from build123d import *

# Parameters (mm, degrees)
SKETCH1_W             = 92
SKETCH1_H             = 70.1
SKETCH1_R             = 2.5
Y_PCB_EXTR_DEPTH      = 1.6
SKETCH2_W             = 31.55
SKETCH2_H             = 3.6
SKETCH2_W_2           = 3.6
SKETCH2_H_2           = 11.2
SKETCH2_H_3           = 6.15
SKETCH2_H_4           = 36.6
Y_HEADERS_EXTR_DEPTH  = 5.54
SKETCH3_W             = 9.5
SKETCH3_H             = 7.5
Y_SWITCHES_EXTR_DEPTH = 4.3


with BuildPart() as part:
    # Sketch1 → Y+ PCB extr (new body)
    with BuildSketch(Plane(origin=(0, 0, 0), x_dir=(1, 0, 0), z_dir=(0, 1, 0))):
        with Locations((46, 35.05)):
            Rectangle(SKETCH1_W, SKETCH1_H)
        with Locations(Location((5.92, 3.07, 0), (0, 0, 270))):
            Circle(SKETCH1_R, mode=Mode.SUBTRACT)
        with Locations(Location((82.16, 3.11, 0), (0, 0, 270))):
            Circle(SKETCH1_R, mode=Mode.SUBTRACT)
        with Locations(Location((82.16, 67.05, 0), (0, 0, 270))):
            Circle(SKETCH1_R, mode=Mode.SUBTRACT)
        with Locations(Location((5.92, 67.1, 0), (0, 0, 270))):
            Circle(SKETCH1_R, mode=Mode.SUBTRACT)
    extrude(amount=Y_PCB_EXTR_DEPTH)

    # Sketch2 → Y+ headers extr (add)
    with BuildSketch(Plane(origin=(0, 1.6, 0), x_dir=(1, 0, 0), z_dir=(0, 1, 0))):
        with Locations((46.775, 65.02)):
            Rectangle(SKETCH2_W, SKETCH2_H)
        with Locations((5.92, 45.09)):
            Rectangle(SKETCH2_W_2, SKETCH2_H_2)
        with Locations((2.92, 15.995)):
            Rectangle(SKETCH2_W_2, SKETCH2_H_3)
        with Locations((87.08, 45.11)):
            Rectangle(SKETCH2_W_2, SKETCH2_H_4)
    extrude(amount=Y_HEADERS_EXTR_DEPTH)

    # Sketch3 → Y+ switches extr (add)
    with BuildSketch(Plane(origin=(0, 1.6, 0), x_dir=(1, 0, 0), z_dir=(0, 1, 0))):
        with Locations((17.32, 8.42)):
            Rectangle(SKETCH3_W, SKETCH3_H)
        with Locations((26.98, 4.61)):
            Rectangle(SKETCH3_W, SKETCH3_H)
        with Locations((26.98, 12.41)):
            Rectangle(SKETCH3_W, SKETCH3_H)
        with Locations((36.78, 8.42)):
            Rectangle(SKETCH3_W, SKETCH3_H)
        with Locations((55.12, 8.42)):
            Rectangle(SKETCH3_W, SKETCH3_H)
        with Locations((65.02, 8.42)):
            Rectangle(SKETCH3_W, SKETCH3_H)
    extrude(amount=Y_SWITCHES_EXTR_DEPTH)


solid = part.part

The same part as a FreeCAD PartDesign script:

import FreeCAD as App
import Part
import Sketcher

V = App.Vector
Q = App.Units.Quantity

doc = App.newDocument("Part")
params = doc.addObject("Spreadsheet::Sheet", "Params")
for row, (alias, value) in enumerate([
    ("sketch1_diameter", "5 mm"),
    ("sketch1_width", "92 mm"),
    ("sketch1_height", "70.1 mm"),
    ("pad1_length", "1.6 mm"),
    ("sketch2_width", "3.6 mm"),
    ("sketch2_height", "11.2 mm"),
    ("sketch2_height2", "36.6 mm"),
    ("sketch2_width2", "31.55 mm"),
    ("sketch2_height3", "6.15 mm"),
    ("pad2_length", "5.54 mm"),
    ("sketch3_width", "9.5 mm"),
    ("sketch3_height", "7.5 mm"),
    ("pad3_length", "4.3 mm"),
], start=1):
    params.set(f"A{row}", alias)
    params.set(f"B{row}", "=" + value)
    params.setAlias(f"B{row}", alias)

body = doc.addObject("PartDesign::Body", "Body")

# Sketch on XZ plane
sketch1 = doc.addObject("Sketcher::SketchObject", "Sketch")
body.addObject(sketch1)
sketch1.AttachmentSupport = (doc.XZ_Plane, [""])
sketch1.MapMode = "FlatFace"
sketch1.addGeometry([
    Part.LineSegment(V(0, -70.1, 0), V(0, 0, 0)),  # 0
    Part.LineSegment(V(0, 0, 0), V(92, 0, 0)),  # 1
    Part.LineSegment(V(92, 0, 0), V(92, -70.1, 0)),  # 2
    Part.LineSegment(V(92, -70.1, 0), V(0, -70.1, 0)),  # 3
    Part.Circle(V(5.9, -3.1, 0), V(0, 0, 1), 2.5),  # 4
    Part.Circle(V(82.2, -3.1, 0), V(0, 0, 1), 2.5),  # 5
    Part.Circle(V(5.9, -67.1, 0), V(0, 0, 1), 2.5),  # 6
    Part.Circle(V(82.2, -67, 0), V(0, 0, 1), 2.5),  # 7
], False)
sketch1.addConstraint([
    Sketcher.Constraint("Coincident", 0, 2, 1, 1),
    Sketcher.Constraint("Coincident", 1, 2, 2, 1),
    Sketcher.Constraint("Coincident", 2, 2, 3, 1),
    Sketcher.Constraint("Coincident", 3, 2, 0, 1),
    Sketcher.Constraint("Vertical", 0),
    Sketcher.Constraint("Horizontal", 1),
    Sketcher.Constraint("Vertical", 2),
    Sketcher.Constraint("Horizontal", 3),
    Sketcher.Constraint("Coincident", 0, 2, -1, 1),
    Sketcher.Constraint("Equal", 4, 5),
    Sketcher.Constraint("Equal", 5, 6),
    Sketcher.Constraint("Equal", 6, 7),
    Sketcher.Constraint("Vertical", 4, 3, 6, 3),
    Sketcher.Constraint("Vertical", 5, 3, 7, 3),
    Sketcher.Constraint("Diameter", 4, Q("5 mm")),
    Sketcher.Constraint("DistanceX", 1, 1, 1, 2, Q("92 mm")),
    Sketcher.Constraint("DistanceY", 0, 1, 0, 2, Q("70.1 mm")),
    Sketcher.Constraint("DistanceY", 2, 2, 6, 3, Q("3 mm")),
    Sketcher.Constraint("DistanceX", -1, 1, 4, 3, Q("5.92 mm")),
    Sketcher.Constraint("DistanceY", 4, 3, -1, 1, Q("3.07 mm")),
    Sketcher.Constraint("DistanceX", -1, 1, 5, 3, Q("82.16 mm")),
    Sketcher.Constraint("DistanceY", 5, 3, -1, 1, Q("3.11 mm")),
    Sketcher.Constraint("DistanceY", 7, 3, -1, 1, Q("67.05 mm")),
])
sketch1.setExpression("Constraints[14]", "Params.sketch1_diameter")
sketch1.setExpression("Constraints[15]", "Params.sketch1_width")
sketch1.setExpression("Constraints[16]", "Params.sketch1_height")
pad1 = doc.addObject("PartDesign::Pad", "Pad")
body.addObject(pad1)
pad1.Profile = sketch1
pad1.setExpression("Length", "Params.pad1_length")
pad1.Reversed = True

# Sketch on XZ plane
sketch2 = doc.addObject("Sketcher::SketchObject", "Sketch001")
body.addObject(sketch2)
sketch2.AttachmentSupport = (doc.XZ_Plane, [""])
sketch2.MapMode = "FlatFace"
sketch2.AttachmentOffset = App.Placement(V(0, 0, -1.6), App.Rotation())
sketch2.addGeometry([
    Part.LineSegment(V(31, -66.8, 0), V(31, -63.2, 0)),  # 0
    Part.LineSegment(V(31, -63.2, 0), V(62.5, -63.2, 0)),  # 1
    Part.LineSegment(V(62.5, -63.2, 0), V(62.5, -66.8, 0)),  # 2
    Part.LineSegment(V(62.5, -66.8, 0), V(31, -66.8, 0)),  # 3
    Part.LineSegment(V(4.1, -50.7, 0), V(4.1, -39.5, 0)),  # 4
    Part.LineSegment(V(4.1, -39.5, 0), V(7.7, -39.5, 0)),  # 5
    Part.LineSegment(V(7.7, -39.5, 0), V(7.7, -50.7, 0)),  # 6
    Part.LineSegment(V(7.7, -50.7, 0), V(4.1, -50.7, 0)),  # 7
    Part.LineSegment(V(1.1, -19.1, 0), V(1.1, -12.9, 0)),  # 8
    Part.LineSegment(V(1.1, -12.9, 0), V(4.7, -12.9, 0)),  # 9
    Part.LineSegment(V(4.7, -12.9, 0), V(4.7, -19.1, 0)),  # 10
    Part.LineSegment(V(4.7, -19.1, 0), V(1.1, -19.1, 0)),  # 11
    Part.LineSegment(V(85.3, -63.4, 0), V(85.3, -26.8, 0)),  # 12
    Part.LineSegment(V(85.3, -26.8, 0), V(88.9, -26.8, 0)),  # 13
    Part.LineSegment(V(88.9, -26.8, 0), V(88.9, -63.4, 0)),  # 14
    Part.LineSegment(V(88.9, -63.4, 0), V(85.3, -63.4, 0)),  # 15
], False)
sketch2.addConstraint([
    Sketcher.Constraint("Coincident", 0, 2, 1, 1),
    Sketcher.Constraint("Coincident", 1, 2, 2, 1),
    Sketcher.Constraint("Coincident", 2, 2, 3, 1),
    Sketcher.Constraint("Coincident", 3, 2, 0, 1),
    Sketcher.Constraint("Coincident", 4, 2, 5, 1),
    Sketcher.Constraint("Coincident", 5, 2, 6, 1),
    Sketcher.Constraint("Coincident", 6, 2, 7, 1),
    Sketcher.Constraint("Coincident", 7, 2, 4, 1),
    Sketcher.Constraint("Coincident", 8, 2, 9, 1),
    Sketcher.Constraint("Coincident", 9, 2, 10, 1),
    Sketcher.Constraint("Coincident", 10, 2, 11, 1),
    Sketcher.Constraint("Coincident", 11, 2, 8, 1),
    Sketcher.Constraint("Coincident", 12, 2, 13, 1),
    Sketcher.Constraint("Coincident", 13, 2, 14, 1),
    Sketcher.Constraint("Coincident", 14, 2, 15, 1),
    Sketcher.Constraint("Coincident", 15, 2, 12, 1),
    Sketcher.Constraint("Vertical", 0),
    Sketcher.Constraint("Horizontal", 1),
    Sketcher.Constraint("Vertical", 2),
    Sketcher.Constraint("Horizontal", 3),
    Sketcher.Constraint("Vertical", 4),
    Sketcher.Constraint("Horizontal", 5),
    Sketcher.Constraint("Vertical", 6),
    Sketcher.Constraint("Horizontal", 7),
    Sketcher.Constraint("Vertical", 8),
    Sketcher.Constraint("Horizontal", 9),
    Sketcher.Constraint("Vertical", 10),
    Sketcher.Constraint("Horizontal", 11),
    Sketcher.Constraint("Vertical", 12),
    Sketcher.Constraint("Horizontal", 13),
    Sketcher.Constraint("Vertical", 14),
    Sketcher.Constraint("Horizontal", 15),
    Sketcher.Constraint("Equal", 7, 9),
    Sketcher.Constraint("Equal", 11, 13),
    Sketcher.Constraint("Equal", 15, 0),
    Sketcher.Constraint("DistanceX", 5, 1, 5, 2, Q("3.6 mm")),
    Sketcher.Constraint("DistanceY", 4, 1, 4, 2, Q("11.2 mm")),
    Sketcher.Constraint("DistanceY", 12, 1, 12, 2, Q("36.6 mm")),
    Sketcher.Constraint("DistanceX", -1, 1, 0, 2, Q("31 mm")),
    Sketcher.Constraint("DistanceX", 8, 2, 4, 2, Q("3 mm")),
    Sketcher.Constraint("DistanceX", 1, 1, 1, 2, Q("31.55 mm")),
    Sketcher.Constraint("DistanceY", 8, 1, 8, 2, Q("6.15 mm")),
    Sketcher.Constraint("DistanceY", 0, 2, 8, 2, Q("50.3 mm")),
    Sketcher.Constraint("DistanceY", 0, 2, -1, 1, Q("63.22 mm")),
    Sketcher.Constraint("DistanceX", -1, 1, 4, 2, Q("4.12 mm")),
    Sketcher.Constraint("DistanceY", 4, 2, -1, 1, Q("39.49 mm")),
    Sketcher.Constraint("DistanceX", -1, 1, 12, 2, Q("85.28 mm")),
    Sketcher.Constraint("DistanceY", 12, 2, -1, 1, Q("26.81 mm")),
])
sketch2.setExpression("Constraints[35]", "Params.sketch2_width")
sketch2.setExpression("Constraints[36]", "Params.sketch2_height")
sketch2.setExpression("Constraints[37]", "Params.sketch2_height2")
sketch2.setExpression("Constraints[40]", "Params.sketch2_width2")
sketch2.setExpression("Constraints[41]", "Params.sketch2_height3")
pad2 = doc.addObject("PartDesign::Pad", "Pad001")
body.addObject(pad2)
pad2.Profile = sketch2
pad2.setExpression("Length", "Params.pad2_length")
pad2.Reversed = True

# Sketch on XZ plane
sketch3 = doc.addObject("Sketcher::SketchObject", "Sketch002")
body.addObject(sketch3)
sketch3.AttachmentSupport = (doc.XZ_Plane, [""])
sketch3.MapMode = "FlatFace"
sketch3.AttachmentOffset = App.Placement(V(0, 0, -1.6), App.Rotation())
sketch3.addGeometry([
    Part.LineSegment(V(13, -12, 0), V(13, -5, 0)),  # 0
    Part.LineSegment(V(13, -5, 0), V(22, -5, 0)),  # 1
    Part.LineSegment(V(22, -5, 0), V(22, -12, 0)),  # 2
    Part.LineSegment(V(22, -12, 0), V(13, -12, 0)),  # 3
    Part.LineSegment(V(22, -8, 0), V(22, -1, 0)),  # 4
    Part.LineSegment(V(22, -1, 0), V(32, -1, 0)),  # 5
    Part.LineSegment(V(32, -1, 0), V(32, -8, 0)),  # 6
    Part.LineSegment(V(32, -8, 0), V(22, -8, 0)),  # 7
    Part.LineSegment(V(22, -16, 0), V(22, -9, 0)),  # 8
    Part.LineSegment(V(22, -9, 0), V(32, -9, 0)),  # 9
    Part.LineSegment(V(32, -9, 0), V(32, -16, 0)),  # 10
    Part.LineSegment(V(32, -16, 0), V(22, -16, 0)),  # 11
    Part.LineSegment(V(32, -12, 0), V(32, -5, 0)),  # 12
    Part.LineSegment(V(32, -5, 0), V(42, -5, 0)),  # 13
    Part.LineSegment(V(42, -5, 0), V(42, -12, 0)),  # 14
    Part.LineSegment(V(42, -12, 0), V(32, -12, 0)),  # 15
    Part.LineSegment(V(50, -12, 0), V(50, -5, 0)),  # 16
    Part.LineSegment(V(50, -5, 0), V(60, -5, 0)),  # 17
    Part.LineSegment(V(60, -5, 0), V(60, -12, 0)),  # 18
    Part.LineSegment(V(60, -12, 0), V(50, -12, 0)),  # 19
    Part.LineSegment(V(60, -12, 0), V(60, -5, 0)),  # 20
    Part.LineSegment(V(60, -5, 0), V(70, -5, 0)),  # 21
    Part.LineSegment(V(70, -5, 0), V(70, -12, 0)),  # 22
    Part.LineSegment(V(70, -12, 0), V(60, -12, 0)),  # 23
], False)
sketch3.addConstraint([
    Sketcher.Constraint("Coincident", 0, 2, 1, 1),
    Sketcher.Constraint("Coincident", 1, 2, 2, 1),
    Sketcher.Constraint("Coincident", 2, 2, 3, 1),
    Sketcher.Constraint("Coincident", 3, 2, 0, 1),
    Sketcher.Constraint("Coincident", 4, 2, 5, 1),
    Sketcher.Constraint("Coincident", 5, 2, 6, 1),
    Sketcher.Constraint("Coincident", 6, 2, 7, 1),
    Sketcher.Constraint("Coincident", 7, 2, 4, 1),
    Sketcher.Constraint("Coincident", 8, 2, 9, 1),
    Sketcher.Constraint("Coincident", 9, 2, 10, 1),
    Sketcher.Constraint("Coincident", 10, 2, 11, 1),
    Sketcher.Constraint("Coincident", 11, 2, 8, 1),
    Sketcher.Constraint("Coincident", 12, 2, 13, 1),
    Sketcher.Constraint("Coincident", 13, 2, 14, 1),
    Sketcher.Constraint("Coincident", 14, 2, 15, 1),
    Sketcher.Constraint("Coincident", 15, 2, 12, 1),
    Sketcher.Constraint("Coincident", 16, 2, 17, 1),
    Sketcher.Constraint("Coincident", 17, 2, 18, 1),
    Sketcher.Constraint("Coincident", 18, 2, 19, 1),
    Sketcher.Constraint("Coincident", 19, 2, 16, 1),
    Sketcher.Constraint("Coincident", 20, 2, 21, 1),
    Sketcher.Constraint("Coincident", 21, 2, 22, 1),
    Sketcher.Constraint("Coincident", 22, 2, 23, 1),
    Sketcher.Constraint("Coincident", 23, 2, 20, 1),
    Sketcher.Constraint("Vertical", 0),
    Sketcher.Constraint("Horizontal", 1),
    Sketcher.Constraint("Vertical", 2),
    Sketcher.Constraint("Horizontal", 3),
    Sketcher.Constraint("Vertical", 4),
    Sketcher.Constraint("Horizontal", 5),
    Sketcher.Constraint("Vertical", 6),
    Sketcher.Constraint("Horizontal", 7),
    Sketcher.Constraint("Vertical", 8),
    Sketcher.Constraint("Horizontal", 9),
    Sketcher.Constraint("Vertical", 10),
    Sketcher.Constraint("Horizontal", 11),
    Sketcher.Constraint("Vertical", 12),
    Sketcher.Constraint("Horizontal", 13),
    Sketcher.Constraint("Vertical", 14),
    Sketcher.Constraint("Horizontal", 15),
    Sketcher.Constraint("Vertical", 16),
    Sketcher.Constraint("Horizontal", 17),
    Sketcher.Constraint("Vertical", 18),
    Sketcher.Constraint("Horizontal", 19),
    Sketcher.Constraint("Vertical", 20),
    Sketcher.Constraint("Horizontal", 21),
    Sketcher.Constraint("Vertical", 22),
    Sketcher.Constraint("Horizontal", 23),
    Sketcher.Constraint("Horizontal", 1, 2, 12, 2),
    Sketcher.Constraint("Horizontal", 3, 2, 14, 2),
    Sketcher.Constraint("Horizontal", 13, 2, 16, 2),
    Sketcher.Constraint("Horizontal", 15, 2, 18, 2),
    Sketcher.Constraint("Horizontal", 17, 2, 20, 2),
    Sketcher.Constraint("Horizontal", 19, 2, 22, 2),
    Sketcher.Constraint("Vertical", 7, 2, 8, 2),
    Sketcher.Constraint("Vertical", 6, 2, 9, 2),
    Sketcher.Constraint("Equal", 3, 5),
    Sketcher.Constraint("Equal", 11, 13),
    Sketcher.Constraint("Equal", 15, 17),
    Sketcher.Constraint("Equal", 19, 21),
    Sketcher.Constraint("Equal", 2, 4),
    Sketcher.Constraint("Equal", 6, 8),
    Sketcher.Constraint("DistanceX", 1, 1, 1, 2, Q("9.5 mm")),
    Sketcher.Constraint("DistanceY", 0, 1, 0, 2, Q("7.5 mm")),
    Sketcher.Constraint("DistanceY", 8, 2, 7, 2, Q("0.3 mm")),
    Sketcher.Constraint("DistanceX", 6, 2, 12, 2, Q("0.3 mm")),
    Sketcher.Constraint("DistanceX", 17, 2, 20, 2, Q("0.4 mm")),
    Sketcher.Constraint("DistanceX", -1, 1, 0, 2, Q("12.57 mm")),
    Sketcher.Constraint("DistanceY", 0, 2, -1, 1, Q("4.67 mm")),
    Sketcher.Constraint("DistanceX", -1, 1, 4, 2, Q("22.23 mm")),
    Sketcher.Constraint("DistanceY", 4, 2, -1, 1, Q("0.86 mm")),
    Sketcher.Constraint("DistanceX", -1, 1, 16, 2, Q("50.37 mm")),
])
sketch3.setExpression("Constraints[62]", "Params.sketch3_width")
sketch3.setExpression("Constraints[63]", "Params.sketch3_height")
pad3 = doc.addObject("PartDesign::Pad", "Pad002")
body.addObject(pad3)
pad3.Profile = sketch3
pad3.setExpression("Length", "Params.pad3_length")
pad3.Reversed = True

doc.recompute()
